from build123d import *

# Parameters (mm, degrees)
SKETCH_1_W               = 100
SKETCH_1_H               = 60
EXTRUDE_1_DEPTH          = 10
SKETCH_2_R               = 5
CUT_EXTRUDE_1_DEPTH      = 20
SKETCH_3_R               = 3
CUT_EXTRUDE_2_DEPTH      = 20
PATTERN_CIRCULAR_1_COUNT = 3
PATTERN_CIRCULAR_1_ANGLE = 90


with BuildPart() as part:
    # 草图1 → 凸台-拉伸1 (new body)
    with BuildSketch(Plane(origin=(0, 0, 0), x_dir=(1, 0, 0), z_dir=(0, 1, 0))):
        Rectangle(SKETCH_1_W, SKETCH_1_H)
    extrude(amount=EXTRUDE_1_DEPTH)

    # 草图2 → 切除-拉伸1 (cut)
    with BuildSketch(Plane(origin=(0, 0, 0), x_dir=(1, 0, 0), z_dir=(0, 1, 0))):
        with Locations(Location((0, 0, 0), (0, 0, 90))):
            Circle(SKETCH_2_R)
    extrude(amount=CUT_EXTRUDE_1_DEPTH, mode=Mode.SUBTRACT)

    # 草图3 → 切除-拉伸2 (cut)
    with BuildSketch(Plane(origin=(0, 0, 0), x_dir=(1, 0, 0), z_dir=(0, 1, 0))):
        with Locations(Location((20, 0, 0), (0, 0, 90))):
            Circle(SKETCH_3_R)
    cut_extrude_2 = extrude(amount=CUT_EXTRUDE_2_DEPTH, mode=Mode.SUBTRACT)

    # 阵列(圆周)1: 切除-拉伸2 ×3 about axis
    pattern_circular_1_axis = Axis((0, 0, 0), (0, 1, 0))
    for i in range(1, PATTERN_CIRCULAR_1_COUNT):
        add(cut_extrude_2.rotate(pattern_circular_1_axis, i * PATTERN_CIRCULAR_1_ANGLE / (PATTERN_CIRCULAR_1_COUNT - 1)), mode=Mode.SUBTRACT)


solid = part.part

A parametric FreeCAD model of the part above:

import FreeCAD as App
import Part
import Sketcher

doc = App.newDocument("Part")
body = doc.addObject("PartDesign::Body", "Body")

sketch1 = body.newObject("Sketcher::SketchObject", "Sketch")
sketch1.AttachmentSupport = (doc.getObject("XZ_Plane"), [""])
sketch1.MapMode = "FlatFace"
sketch1.addGeometry([
    Part.LineSegment(App.Vector(-50, -30, 0), App.Vector(-50, 30, 0)),
    Part.LineSegment(App.Vector(-50, 30, 0), App.Vector(50, 30, 0)),
    Part.LineSegment(App.Vector(50, 30, 0), App.Vector(50, -30, 0)),
    Part.LineSegment(App.Vector(50, -30, 0), App.Vector(-50, -30, 0)),
], False)
sketch1.addConstraint([
    Sketcher.Constraint("Coincident", 0, 2, 1, 1),
    Sketcher.Constraint("Coincident", 1, 2, 2, 1),
    Sketcher.Constraint("Coincident", 2, 2, 3, 1),
    Sketcher.Constraint("Coincident", 3, 2, 0, 1),
    Sketcher.Constraint("Vertical", 0),
    Sketcher.Constraint("Horizontal", 1),
    Sketcher.Constraint("Vertical", 2),
    Sketcher.Constraint("Horizontal", 3),
    Sketcher.Constraint("Symmetric", 0, 2, 2, 2, -1, 1),
    Sketcher.Constraint("DistanceX", 1, 1, 1, 2, 100.0),
    Sketcher.Constraint("DistanceY", 0, 1, 0, 2, 60.0),
])
pad1 = body.newObject("PartDesign::Pad", "Pad")
pad1.Profile = sketch1
pad1.Length = 10
pad1.Reversed = True

sketch2 = body.newObject("Sketcher::SketchObject", "Sketch001")
sketch2.AttachmentSupport = (doc.getObject("XZ_Plane"), [""])
sketch2.MapMode = "FlatFace"
sketch2.addGeometry(Part.Circle(App.Vector(0, 0, 0), App.Vector(0, 0, 1), 5), False)
sketch2.addConstraint([
    Sketcher.Constraint("Coincident", 0, 3, -1, 1),
    Sketcher.Constraint("Diameter", 0, 10.0),
])
pocket1 = body.newObject("PartDesign::Pocket", "Pocket")
pocket1.Profile = sketch2
pocket1.Length = 20

sketch3 = body.newObject("Sketcher::SketchObject", "Sketch002")
sketch3.AttachmentSupport = (doc.getObject("XZ_Plane"), [""])
sketch3.MapMode = "FlatFace"
sketch3.addGeometry(Part.Circle(App.Vector(20, 0, 0), App.Vector(0, 0, 1), 3), False)
sketch3.addConstraint([
    Sketcher.Constraint("PointOnObject", 0, 3, -1),
    Sketcher.Constraint("Diameter", 0, 6.0),
    Sketcher.Constraint("DistanceX", -1, 1, 0, 3, 20.0),
])
pocket2 = body.newObject("PartDesign::Pocket", "Pocket001")
pocket2.Profile = sketch3
pocket2.Length = 20
doc.recompute()

polarpattern = body.newObject("PartDesign::PolarPattern", "PolarPattern")
polarpattern.Originals = [pocket2]
polarpattern.Axis = (doc.getObject("Y_Axis"), [""])
polarpattern.Angle = 90
polarpattern.Occurrences = 3
body.Tip = polarpattern

doc.recompute()
